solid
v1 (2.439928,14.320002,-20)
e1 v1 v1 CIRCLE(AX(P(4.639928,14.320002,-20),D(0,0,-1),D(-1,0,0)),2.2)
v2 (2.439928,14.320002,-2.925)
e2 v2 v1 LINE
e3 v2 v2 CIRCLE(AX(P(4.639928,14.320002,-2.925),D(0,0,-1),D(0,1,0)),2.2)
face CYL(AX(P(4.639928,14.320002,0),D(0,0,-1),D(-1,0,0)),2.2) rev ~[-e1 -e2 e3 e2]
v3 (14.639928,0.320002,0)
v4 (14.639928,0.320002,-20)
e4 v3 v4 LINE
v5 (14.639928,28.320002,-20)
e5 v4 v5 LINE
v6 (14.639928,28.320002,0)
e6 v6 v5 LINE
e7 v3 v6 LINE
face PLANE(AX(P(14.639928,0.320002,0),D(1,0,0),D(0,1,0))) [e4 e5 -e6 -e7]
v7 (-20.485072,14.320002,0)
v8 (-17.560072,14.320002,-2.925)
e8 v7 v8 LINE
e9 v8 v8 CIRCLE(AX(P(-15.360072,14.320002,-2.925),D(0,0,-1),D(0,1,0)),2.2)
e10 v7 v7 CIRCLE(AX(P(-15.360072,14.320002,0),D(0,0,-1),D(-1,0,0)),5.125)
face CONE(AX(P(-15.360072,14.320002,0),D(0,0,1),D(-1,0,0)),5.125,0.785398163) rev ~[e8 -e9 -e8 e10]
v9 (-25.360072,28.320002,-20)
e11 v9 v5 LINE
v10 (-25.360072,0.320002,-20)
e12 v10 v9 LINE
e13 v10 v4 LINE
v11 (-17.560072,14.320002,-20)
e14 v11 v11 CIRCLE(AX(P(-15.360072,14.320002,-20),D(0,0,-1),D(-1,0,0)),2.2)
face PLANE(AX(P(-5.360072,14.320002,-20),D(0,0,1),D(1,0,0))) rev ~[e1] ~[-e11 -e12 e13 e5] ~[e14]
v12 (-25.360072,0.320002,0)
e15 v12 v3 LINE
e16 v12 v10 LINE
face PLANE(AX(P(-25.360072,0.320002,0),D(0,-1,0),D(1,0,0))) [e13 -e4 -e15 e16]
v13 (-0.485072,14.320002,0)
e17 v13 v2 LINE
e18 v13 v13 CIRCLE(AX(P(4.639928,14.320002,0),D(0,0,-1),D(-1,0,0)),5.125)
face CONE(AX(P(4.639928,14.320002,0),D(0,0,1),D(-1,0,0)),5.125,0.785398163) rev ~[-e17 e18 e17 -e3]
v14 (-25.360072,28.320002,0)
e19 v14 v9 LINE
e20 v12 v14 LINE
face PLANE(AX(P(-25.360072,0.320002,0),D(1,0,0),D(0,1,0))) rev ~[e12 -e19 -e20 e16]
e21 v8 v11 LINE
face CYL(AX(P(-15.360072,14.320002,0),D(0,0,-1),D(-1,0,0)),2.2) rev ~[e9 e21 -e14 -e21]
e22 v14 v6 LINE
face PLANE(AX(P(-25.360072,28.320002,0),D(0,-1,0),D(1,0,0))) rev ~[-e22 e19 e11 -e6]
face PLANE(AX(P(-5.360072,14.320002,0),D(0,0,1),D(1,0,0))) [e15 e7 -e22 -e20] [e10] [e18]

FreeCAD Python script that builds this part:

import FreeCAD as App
import Part
import Sketcher

doc = App.newDocument("Part")
body = doc.addObject("PartDesign::Body", "Body")

# Sketch on XY plane
sketch1 = doc.addObject("Sketcher::SketchObject", "Sketch")
body.addObject(sketch1)
sketch1.AttachmentSupport = (doc.XY_Plane, [""])
sketch1.MapMode = "FlatFace"
sketch1.addGeometry(Part.LineSegment(App.Vector(-25.360072, 28.320002, 0), App.Vector(-25.360072, 0.320002, 0)), False)
sketch1.addGeometry(Part.LineSegment(App.Vector(-25.360072, 0.320002, 0), App.Vector(14.639928, 0.320002, 0)), False)
sketch1.addGeometry(Part.LineSegment(App.Vector(14.639928, 0.320002, 0), App.Vector(14.639928, 28.320002, 0)), False)
sketch1.addGeometry(Part.LineSegment(App.Vector(14.639928, 28.320002, 0), App.Vector(-25.360072, 28.320002, 0)), False)
sketch1.addConstraint(Sketcher.Constraint("Coincident", 0, 2, 1, 1))
sketch1.addConstraint(Sketcher.Constraint("Coincident", 1, 2, 2, 1))
sketch1.addConstraint(Sketcher.Constraint("Coincident", 2, 2, 3, 1))
sketch1.addConstraint(Sketcher.Constraint("Coincident", 3, 2, 0, 1))
sketch1.addConstraint(Sketcher.Constraint("Vertical", 0))
sketch1.addConstraint(Sketcher.Constraint("Horizontal", 1))
sketch1.addConstraint(Sketcher.Constraint("Vertical", 2))
sketch1.addConstraint(Sketcher.Constraint("Horizontal", 3))
sketch1.addConstraint(Sketcher.Constraint("DistanceX", 1, 1, 1, 2, 40.0))
sketch1.addConstraint(Sketcher.Constraint("DistanceY", 0, 2, 0, 1, 28.0))
sketch1.addConstraint(Sketcher.Constraint("DistanceY", -1, 1, 2, 2, 28.320002))
sketch1.addConstraint(Sketcher.Constraint("DistanceX", 0, 2, -1, 1, 25.360072))
pad1 = doc.addObject("PartDesign::Pad", "Pad")
body.addObject(pad1)
pad1.Profile = sketch1
pad1.Length = 20
pad1.Reversed = True

# Sketch on XY plane
sketch2 = doc.addObject("Sketcher::SketchObject", "Sketch001")
body.addObject(sketch2)
sketch2.AttachmentSupport = (doc.XY_Plane, [""])
sketch2.MapMode = "FlatFace"
sketch2.addGeometry(Part.Circle(App.Vector(4.639928, 14.320002, 0), App.Vector(0, 0, 1), 2.2), False)
sketch2.addGeometry(Part.Circle(App.Vector(-15.360072, 14.320002, 0), App.Vector(0, 0, 1), 2.2), False)
sketch2.addConstraint(Sketcher.Constraint("Equal", 0, 1))
sketch2.addConstraint(Sketcher.Constraint("Horizontal", 0, 3, 1, 3))
sketch2.addConstraint(Sketcher.Constraint("Diameter", 0, 4.4))
sketch2.addConstraint(Sketcher.Constraint("DistanceX", 1, 3, 0, 3, 20.0))
sketch2.addConstraint(Sketcher.Constraint("DistanceX", -1, 1, 0, 3, 4.639928))
sketch2.addConstraint(Sketcher.Constraint("DistanceY", -1, 1, 0, 3, 14.320002))
doc.recompute()
hole = doc.addObject("PartDesign::Hole", "Hole")
body.addObject(hole)
hole.Profile = sketch2
hole.ThreadType = "None"
hole.Diameter = 4.4
hole.DepthType = "ThroughAll"
hole.HoleCutType = "Countersink"
hole.HoleCutDiameter = 10.25
hole.HoleCutCountersinkAngle = 90

doc.recompute()
